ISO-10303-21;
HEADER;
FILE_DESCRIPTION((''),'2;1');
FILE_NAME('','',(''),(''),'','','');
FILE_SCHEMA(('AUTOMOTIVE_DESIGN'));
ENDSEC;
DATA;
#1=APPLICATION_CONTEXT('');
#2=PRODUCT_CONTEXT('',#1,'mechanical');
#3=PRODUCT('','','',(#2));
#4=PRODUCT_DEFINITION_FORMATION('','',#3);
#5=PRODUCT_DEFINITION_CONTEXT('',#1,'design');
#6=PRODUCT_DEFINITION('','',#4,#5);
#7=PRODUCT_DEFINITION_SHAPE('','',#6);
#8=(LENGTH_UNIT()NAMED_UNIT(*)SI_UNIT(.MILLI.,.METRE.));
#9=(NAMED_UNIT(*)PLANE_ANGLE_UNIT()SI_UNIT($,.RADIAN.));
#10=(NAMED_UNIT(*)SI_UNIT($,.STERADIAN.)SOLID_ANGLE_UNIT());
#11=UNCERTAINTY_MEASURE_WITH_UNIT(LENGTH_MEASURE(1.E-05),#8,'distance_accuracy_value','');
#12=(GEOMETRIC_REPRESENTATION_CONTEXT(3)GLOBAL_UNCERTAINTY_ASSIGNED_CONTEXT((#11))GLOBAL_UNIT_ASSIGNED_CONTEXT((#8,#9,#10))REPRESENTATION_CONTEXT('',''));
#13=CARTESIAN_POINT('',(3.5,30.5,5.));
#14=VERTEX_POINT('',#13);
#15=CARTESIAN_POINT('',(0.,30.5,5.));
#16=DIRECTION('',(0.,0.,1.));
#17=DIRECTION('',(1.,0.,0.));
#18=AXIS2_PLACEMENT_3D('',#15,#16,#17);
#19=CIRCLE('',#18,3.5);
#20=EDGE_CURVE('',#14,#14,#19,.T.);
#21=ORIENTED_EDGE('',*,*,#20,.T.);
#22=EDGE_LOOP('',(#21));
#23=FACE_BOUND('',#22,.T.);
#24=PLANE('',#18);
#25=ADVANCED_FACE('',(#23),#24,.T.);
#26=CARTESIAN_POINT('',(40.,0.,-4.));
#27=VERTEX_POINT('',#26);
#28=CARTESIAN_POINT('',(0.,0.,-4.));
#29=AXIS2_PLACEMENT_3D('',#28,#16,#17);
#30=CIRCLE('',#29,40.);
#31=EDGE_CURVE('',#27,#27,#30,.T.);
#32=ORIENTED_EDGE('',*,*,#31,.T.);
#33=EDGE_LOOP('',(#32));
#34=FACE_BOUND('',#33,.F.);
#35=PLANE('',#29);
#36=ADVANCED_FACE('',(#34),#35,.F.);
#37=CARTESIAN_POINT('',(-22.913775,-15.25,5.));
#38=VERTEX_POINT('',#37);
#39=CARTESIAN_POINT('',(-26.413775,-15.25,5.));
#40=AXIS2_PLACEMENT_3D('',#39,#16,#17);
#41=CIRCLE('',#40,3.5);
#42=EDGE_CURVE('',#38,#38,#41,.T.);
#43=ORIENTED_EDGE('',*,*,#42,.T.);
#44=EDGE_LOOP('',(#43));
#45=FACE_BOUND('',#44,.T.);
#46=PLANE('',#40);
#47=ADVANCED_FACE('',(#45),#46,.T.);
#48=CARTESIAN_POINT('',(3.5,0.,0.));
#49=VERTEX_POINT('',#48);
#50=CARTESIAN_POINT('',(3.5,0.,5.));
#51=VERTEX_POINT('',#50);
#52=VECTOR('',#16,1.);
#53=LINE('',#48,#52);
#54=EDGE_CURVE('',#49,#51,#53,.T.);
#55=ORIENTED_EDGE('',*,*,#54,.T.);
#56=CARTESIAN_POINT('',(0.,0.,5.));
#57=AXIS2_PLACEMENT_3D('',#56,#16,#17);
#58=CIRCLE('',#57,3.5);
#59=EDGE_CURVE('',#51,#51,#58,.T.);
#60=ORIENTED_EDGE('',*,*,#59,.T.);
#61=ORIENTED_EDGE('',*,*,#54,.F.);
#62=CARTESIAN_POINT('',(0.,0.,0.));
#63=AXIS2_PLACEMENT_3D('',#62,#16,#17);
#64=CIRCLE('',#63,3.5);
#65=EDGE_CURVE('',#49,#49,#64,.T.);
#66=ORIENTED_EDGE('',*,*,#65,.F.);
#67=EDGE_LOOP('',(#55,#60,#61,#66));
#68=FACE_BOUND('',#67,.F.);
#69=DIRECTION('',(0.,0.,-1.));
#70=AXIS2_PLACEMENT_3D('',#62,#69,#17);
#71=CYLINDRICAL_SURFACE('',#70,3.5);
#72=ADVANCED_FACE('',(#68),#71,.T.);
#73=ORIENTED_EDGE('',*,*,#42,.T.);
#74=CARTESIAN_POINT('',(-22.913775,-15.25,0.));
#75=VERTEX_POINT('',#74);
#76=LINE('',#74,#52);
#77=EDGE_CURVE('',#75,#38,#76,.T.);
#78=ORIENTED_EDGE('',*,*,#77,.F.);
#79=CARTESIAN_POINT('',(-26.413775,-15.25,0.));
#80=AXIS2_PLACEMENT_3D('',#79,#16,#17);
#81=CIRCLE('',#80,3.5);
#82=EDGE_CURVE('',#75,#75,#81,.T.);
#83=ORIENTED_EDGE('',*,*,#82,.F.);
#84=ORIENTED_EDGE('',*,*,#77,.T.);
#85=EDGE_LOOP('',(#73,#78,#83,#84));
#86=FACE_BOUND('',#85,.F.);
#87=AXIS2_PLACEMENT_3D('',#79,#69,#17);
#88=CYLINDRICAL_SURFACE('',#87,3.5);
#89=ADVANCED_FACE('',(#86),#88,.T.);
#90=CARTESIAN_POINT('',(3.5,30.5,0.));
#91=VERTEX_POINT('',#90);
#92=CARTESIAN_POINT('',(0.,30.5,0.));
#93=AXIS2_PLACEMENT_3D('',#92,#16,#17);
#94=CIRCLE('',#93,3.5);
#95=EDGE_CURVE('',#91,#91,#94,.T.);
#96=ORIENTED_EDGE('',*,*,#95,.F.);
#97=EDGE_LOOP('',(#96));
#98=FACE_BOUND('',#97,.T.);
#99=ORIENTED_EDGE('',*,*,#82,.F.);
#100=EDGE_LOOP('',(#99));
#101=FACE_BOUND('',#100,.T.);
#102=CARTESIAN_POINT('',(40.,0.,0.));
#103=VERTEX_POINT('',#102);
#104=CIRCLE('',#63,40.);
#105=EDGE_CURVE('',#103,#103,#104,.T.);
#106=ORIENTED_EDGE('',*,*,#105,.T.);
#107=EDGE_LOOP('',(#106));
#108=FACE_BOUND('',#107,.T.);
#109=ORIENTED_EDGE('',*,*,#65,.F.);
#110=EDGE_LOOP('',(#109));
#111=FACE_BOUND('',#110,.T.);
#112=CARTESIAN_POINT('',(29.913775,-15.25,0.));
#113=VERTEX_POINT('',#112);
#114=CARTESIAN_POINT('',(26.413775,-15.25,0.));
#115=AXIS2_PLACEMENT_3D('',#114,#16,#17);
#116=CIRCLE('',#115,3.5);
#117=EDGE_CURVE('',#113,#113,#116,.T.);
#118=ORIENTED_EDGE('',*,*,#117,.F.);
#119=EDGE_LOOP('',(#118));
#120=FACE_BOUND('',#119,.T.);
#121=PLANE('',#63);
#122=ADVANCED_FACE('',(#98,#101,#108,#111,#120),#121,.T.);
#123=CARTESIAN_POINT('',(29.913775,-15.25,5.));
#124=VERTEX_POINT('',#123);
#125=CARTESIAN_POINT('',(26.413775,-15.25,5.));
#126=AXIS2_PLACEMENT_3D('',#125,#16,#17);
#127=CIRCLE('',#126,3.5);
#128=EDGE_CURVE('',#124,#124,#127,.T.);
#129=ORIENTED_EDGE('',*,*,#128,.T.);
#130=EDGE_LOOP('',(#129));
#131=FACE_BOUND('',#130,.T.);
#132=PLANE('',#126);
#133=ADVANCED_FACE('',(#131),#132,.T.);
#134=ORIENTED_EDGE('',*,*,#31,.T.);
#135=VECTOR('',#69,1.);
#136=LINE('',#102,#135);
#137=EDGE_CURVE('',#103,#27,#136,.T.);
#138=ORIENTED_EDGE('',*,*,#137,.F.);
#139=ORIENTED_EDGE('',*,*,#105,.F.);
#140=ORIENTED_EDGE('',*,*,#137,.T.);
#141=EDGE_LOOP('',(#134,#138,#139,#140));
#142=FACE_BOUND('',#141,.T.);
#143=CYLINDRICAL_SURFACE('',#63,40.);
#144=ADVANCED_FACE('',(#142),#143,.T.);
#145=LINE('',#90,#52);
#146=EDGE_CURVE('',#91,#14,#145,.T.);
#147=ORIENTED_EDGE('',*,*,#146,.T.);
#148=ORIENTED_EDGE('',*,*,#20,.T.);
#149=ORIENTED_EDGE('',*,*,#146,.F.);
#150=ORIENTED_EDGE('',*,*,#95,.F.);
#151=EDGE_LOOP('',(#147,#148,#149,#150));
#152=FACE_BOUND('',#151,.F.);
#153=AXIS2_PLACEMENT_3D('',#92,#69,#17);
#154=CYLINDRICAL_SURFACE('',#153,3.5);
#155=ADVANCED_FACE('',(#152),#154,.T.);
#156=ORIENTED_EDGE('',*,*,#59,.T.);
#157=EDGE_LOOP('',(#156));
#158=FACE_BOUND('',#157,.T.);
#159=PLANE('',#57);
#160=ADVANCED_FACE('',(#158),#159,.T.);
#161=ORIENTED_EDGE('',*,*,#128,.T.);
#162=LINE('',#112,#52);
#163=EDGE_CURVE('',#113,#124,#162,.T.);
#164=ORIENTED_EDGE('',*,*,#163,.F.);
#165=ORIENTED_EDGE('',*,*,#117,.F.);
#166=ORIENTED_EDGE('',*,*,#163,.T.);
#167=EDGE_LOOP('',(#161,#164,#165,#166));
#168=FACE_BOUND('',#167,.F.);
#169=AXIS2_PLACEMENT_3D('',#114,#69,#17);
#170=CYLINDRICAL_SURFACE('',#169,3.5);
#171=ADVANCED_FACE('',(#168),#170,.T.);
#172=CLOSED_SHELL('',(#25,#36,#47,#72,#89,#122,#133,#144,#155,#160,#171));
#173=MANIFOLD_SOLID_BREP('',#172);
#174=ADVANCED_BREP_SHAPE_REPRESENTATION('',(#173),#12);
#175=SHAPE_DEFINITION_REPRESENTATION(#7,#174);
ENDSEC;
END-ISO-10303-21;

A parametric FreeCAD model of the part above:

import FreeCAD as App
import Part
import Sketcher
from FreeCAD import Vector
Q = App.Units.Quantity

doc = App.newDocument("Part")
body = doc.addObject("PartDesign::Body", "Body")

# Sketch on XY plane
sketch1 = doc.addObject("Sketcher::SketchObject", "Sketch")
body.addObject(sketch1)
sketch1.AttachmentSupport = (doc.XY_Plane, [""])
sketch1.MapMode = "FlatFace"
sketch1.addGeometry(Part.Circle(Vector(0, 0, 0), Vector(0, 0, 1), 40), False)
sketch1.addConstraint([
    Sketcher.Constraint("Coincident", 0, 3, -1, 1),
    Sketcher.Constraint("Diameter", 0, Q("80 mm")),
])
pad1 = doc.addObject("PartDesign::Pad", "Pad")
body.addObject(pad1)
pad1.Profile = sketch1
pad1.Length = 4
pad1.Reversed = True

# Sketch on XY plane
sketch2 = doc.addObject("Sketcher::SketchObject", "Sketch001")
body.addObject(sketch2)
sketch2.AttachmentSupport = (doc.XY_Plane, [""])
sketch2.MapMode = "FlatFace"
sketch2.addGeometry([
    Part.Circle(Vector(0, 0, 0), Vector(0, 0, 1), 3.5),
    Part.Circle(Vector(0, 30.5, 0), Vector(0, 0, 1), 3.5),
    Part.Circle(Vector(-26.413775, -15.25, 0), Vector(0, 0, 1), 3.5),
    Part.Circle(Vector(26.413775, -15.25, 0), Vector(0, 0, 1), 3.5),
], False)
sketch2.addConstraint([
    Sketcher.Constraint("Coincident", 0, 3, -1, 1),
    Sketcher.Constraint("Equal", 0, 1),
    Sketcher.Constraint("Equal", 1, 2),
    Sketcher.Constraint("Equal", 2, 3),
    Sketcher.Constraint("Symmetric", 2, 3, 3, 3, -2),
    Sketcher.Constraint("PointOnObject", 1, 3, -2),
    Sketcher.Constraint("Diameter", 0, Q("7 mm")),
    Sketcher.Constraint("DistanceY", -1, 1, 1, 3, Q("30.5 mm")),
    Sketcher.Constraint("DistanceY", 2, 3, -1, 1, Q("15.25 mm")),
    Sketcher.Constraint("DistanceX", 2, 3, 3, 3, Q("52.82755 mm")),
])
pad2 = doc.addObject("PartDesign::Pad", "Pad001")
body.addObject(pad2)
pad2.Profile = sketch2
pad2.Length = 5

doc.recompute()
